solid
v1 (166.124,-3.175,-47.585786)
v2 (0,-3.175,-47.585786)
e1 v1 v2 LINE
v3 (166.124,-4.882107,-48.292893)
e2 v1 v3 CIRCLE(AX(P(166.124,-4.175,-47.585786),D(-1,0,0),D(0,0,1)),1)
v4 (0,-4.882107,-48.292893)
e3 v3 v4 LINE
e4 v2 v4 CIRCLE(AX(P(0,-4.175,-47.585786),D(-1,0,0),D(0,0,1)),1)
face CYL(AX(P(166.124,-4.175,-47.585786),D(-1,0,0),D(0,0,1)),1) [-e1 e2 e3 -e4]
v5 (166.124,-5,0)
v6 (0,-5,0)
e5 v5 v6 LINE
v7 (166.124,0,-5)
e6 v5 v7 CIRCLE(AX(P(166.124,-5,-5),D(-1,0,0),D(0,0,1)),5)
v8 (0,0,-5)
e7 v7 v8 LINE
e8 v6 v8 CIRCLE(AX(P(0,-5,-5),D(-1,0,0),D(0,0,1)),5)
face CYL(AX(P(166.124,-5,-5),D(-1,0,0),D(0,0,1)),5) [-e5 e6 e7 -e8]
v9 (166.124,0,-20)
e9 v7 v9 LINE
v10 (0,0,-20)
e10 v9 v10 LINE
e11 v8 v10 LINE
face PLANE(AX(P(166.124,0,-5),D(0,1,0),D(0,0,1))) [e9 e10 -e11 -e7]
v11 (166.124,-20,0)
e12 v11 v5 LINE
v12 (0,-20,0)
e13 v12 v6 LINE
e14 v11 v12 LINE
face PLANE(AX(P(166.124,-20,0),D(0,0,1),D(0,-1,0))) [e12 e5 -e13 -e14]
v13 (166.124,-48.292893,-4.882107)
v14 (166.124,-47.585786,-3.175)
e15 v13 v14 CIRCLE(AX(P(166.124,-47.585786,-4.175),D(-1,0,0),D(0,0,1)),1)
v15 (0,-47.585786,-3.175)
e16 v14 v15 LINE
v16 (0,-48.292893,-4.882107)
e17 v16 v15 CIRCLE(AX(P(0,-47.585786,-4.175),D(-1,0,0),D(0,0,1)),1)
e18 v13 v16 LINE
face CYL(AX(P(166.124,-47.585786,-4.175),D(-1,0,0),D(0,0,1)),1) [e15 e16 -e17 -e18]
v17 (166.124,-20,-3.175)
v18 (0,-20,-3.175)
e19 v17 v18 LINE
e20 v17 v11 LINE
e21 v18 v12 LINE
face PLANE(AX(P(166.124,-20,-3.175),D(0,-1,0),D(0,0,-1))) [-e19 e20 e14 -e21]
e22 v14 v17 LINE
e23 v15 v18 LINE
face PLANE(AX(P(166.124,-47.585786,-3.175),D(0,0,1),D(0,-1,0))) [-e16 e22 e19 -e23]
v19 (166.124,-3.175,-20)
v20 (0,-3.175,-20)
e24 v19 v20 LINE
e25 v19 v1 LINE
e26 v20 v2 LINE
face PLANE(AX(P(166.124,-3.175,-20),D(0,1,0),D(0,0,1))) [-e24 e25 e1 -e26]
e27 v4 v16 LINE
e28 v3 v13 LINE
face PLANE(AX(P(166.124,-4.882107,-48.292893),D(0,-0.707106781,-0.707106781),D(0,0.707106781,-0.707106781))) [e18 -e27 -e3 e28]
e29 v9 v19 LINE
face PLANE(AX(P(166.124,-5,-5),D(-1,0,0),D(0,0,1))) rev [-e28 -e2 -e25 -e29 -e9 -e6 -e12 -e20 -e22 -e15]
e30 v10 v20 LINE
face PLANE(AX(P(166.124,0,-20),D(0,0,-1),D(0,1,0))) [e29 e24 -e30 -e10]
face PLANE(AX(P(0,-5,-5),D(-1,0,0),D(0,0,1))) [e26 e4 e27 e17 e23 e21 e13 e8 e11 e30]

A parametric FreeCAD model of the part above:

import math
import FreeCAD as App
import Part
import Sketcher

V = App.Vector

doc = App.newDocument("Part")
body = doc.addObject("PartDesign::Body", "Body")

# Sketch on YZ plane
sketch1 = body.newObject("Sketcher::SketchObject", "Sketch")
sketch1.AttachmentSupport = (doc.getObject("YZ_Plane"), [""])
sketch1.MapMode = "FlatFace"
sketch1.addGeometry(Part.LineSegment(V(-5, 0, 0), V(-20, 0, 0)), False)
sketch1.addGeometry(Part.LineSegment(V(-20, 0, 0), V(-20, -3.2, 0)), False)
sketch1.addGeometry(Part.LineSegment(V(-20, -3.2, 0), V(-47.6, -3.2, 0)), False)
sketch1.addGeometry(Part.ArcOfCircle(Part.Circle(V(-47.6, -4.2, 0), V(0, 0, 1), 1), math.radians(90), math.radians(225)), False)
sketch1.addGeometry(Part.LineSegment(V(-48.3, -4.9, 0), V(-4.9, -48.3, 0)), False)
sketch1.addGeometry(Part.ArcOfCircle(Part.Circle(V(-4.2, -47.6, 0), V(0, 0, 1), 1), math.radians(-135), math.radians(0)), False)
sketch1.addGeometry(Part.LineSegment(V(-3.2, -47.6, 0), V(-3.2, -20, 0)), False)
sketch1.addGeometry(Part.LineSegment(V(-3.2, -20, 0), V(0, -20, 0)), False)
sketch1.addGeometry(Part.LineSegment(V(0, -20, 0), V(0, -5, 0)), False)
sketch1.addGeometry(Part.ArcOfCircle(Part.Circle(V(-5, -5, 0), V(0, 0, 1), 5), math.radians(0), math.radians(90)), False)
sketch1.addConstraint(Sketcher.Constraint("Coincident", 0, 2, 1, 1))
sketch1.addConstraint(Sketcher.Constraint("Coincident", 1, 2, 2, 1))
sketch1.addConstraint(Sketcher.Constraint("Tangent", 2, 2, 3, 1))
sketch1.addConstraint(Sketcher.Constraint("Tangent", 3, 2, 4, 1))
sketch1.addConstraint(Sketcher.Constraint("Tangent", 4, 2, 5, 1))
sketch1.addConstraint(Sketcher.Constraint("Tangent", 5, 2, 6, 1))
sketch1.addConstraint(Sketcher.Constraint("Coincident", 6, 2, 7, 1))
sketch1.addConstraint(Sketcher.Constraint("Coincident", 7, 2, 8, 1))
sketch1.addConstraint(Sketcher.Constraint("Tangent", 8, 2, 9, 1))
sketch1.addConstraint(Sketcher.Constraint("Tangent", 9, 2, 0, 1))
sketch1.addConstraint(Sketcher.Constraint("Horizontal", 0))
sketch1.addConstraint(Sketcher.Constraint("Vertical", 1))
sketch1.addConstraint(Sketcher.Constraint("Horizontal", 2))
sketch1.addConstraint(Sketcher.Constraint("Vertical", 6))
sketch1.addConstraint(Sketcher.Constraint("Horizontal", 7))
sketch1.addConstraint(Sketcher.Constraint("Vertical", 8))
sketch1.addConstraint(Sketcher.Constraint("Equal", 3, 5))
sketch1.addConstraint(Sketcher.Constraint("PointOnObject", 0, 2, -1))
sketch1.addConstraint(Sketcher.Constraint("PointOnObject", 7, 2, -2))
sketch1.addConstraint(Sketcher.Constraint("Equal", 7, 1))
sketch1.addConstraint(Sketcher.Constraint("Equal", 2, 6))
sketch1.addConstraint(Sketcher.Constraint("Equal", 0, 8))
sketch1.addConstraint(Sketcher.Constraint("Radius", 3, 1.0))
sketch1.addConstraint(Sketcher.Constraint("Radius", 9, 5.0))
sketch1.addConstraint(Sketcher.Constraint("DistanceX", 0, 2, 0, 1, 15.0))
sketch1.addConstraint(Sketcher.Constraint("DistanceX", 7, 1, 7, 2, 3.175))
sketch1.addConstraint(Sketcher.Constraint("DistanceX", 2, 2, 2, 1, 27.585786))
pad1 = body.newObject("PartDesign::Pad", "Pad")
pad1.Profile = sketch1
pad1.Length = 166.124

doc.recompute()
